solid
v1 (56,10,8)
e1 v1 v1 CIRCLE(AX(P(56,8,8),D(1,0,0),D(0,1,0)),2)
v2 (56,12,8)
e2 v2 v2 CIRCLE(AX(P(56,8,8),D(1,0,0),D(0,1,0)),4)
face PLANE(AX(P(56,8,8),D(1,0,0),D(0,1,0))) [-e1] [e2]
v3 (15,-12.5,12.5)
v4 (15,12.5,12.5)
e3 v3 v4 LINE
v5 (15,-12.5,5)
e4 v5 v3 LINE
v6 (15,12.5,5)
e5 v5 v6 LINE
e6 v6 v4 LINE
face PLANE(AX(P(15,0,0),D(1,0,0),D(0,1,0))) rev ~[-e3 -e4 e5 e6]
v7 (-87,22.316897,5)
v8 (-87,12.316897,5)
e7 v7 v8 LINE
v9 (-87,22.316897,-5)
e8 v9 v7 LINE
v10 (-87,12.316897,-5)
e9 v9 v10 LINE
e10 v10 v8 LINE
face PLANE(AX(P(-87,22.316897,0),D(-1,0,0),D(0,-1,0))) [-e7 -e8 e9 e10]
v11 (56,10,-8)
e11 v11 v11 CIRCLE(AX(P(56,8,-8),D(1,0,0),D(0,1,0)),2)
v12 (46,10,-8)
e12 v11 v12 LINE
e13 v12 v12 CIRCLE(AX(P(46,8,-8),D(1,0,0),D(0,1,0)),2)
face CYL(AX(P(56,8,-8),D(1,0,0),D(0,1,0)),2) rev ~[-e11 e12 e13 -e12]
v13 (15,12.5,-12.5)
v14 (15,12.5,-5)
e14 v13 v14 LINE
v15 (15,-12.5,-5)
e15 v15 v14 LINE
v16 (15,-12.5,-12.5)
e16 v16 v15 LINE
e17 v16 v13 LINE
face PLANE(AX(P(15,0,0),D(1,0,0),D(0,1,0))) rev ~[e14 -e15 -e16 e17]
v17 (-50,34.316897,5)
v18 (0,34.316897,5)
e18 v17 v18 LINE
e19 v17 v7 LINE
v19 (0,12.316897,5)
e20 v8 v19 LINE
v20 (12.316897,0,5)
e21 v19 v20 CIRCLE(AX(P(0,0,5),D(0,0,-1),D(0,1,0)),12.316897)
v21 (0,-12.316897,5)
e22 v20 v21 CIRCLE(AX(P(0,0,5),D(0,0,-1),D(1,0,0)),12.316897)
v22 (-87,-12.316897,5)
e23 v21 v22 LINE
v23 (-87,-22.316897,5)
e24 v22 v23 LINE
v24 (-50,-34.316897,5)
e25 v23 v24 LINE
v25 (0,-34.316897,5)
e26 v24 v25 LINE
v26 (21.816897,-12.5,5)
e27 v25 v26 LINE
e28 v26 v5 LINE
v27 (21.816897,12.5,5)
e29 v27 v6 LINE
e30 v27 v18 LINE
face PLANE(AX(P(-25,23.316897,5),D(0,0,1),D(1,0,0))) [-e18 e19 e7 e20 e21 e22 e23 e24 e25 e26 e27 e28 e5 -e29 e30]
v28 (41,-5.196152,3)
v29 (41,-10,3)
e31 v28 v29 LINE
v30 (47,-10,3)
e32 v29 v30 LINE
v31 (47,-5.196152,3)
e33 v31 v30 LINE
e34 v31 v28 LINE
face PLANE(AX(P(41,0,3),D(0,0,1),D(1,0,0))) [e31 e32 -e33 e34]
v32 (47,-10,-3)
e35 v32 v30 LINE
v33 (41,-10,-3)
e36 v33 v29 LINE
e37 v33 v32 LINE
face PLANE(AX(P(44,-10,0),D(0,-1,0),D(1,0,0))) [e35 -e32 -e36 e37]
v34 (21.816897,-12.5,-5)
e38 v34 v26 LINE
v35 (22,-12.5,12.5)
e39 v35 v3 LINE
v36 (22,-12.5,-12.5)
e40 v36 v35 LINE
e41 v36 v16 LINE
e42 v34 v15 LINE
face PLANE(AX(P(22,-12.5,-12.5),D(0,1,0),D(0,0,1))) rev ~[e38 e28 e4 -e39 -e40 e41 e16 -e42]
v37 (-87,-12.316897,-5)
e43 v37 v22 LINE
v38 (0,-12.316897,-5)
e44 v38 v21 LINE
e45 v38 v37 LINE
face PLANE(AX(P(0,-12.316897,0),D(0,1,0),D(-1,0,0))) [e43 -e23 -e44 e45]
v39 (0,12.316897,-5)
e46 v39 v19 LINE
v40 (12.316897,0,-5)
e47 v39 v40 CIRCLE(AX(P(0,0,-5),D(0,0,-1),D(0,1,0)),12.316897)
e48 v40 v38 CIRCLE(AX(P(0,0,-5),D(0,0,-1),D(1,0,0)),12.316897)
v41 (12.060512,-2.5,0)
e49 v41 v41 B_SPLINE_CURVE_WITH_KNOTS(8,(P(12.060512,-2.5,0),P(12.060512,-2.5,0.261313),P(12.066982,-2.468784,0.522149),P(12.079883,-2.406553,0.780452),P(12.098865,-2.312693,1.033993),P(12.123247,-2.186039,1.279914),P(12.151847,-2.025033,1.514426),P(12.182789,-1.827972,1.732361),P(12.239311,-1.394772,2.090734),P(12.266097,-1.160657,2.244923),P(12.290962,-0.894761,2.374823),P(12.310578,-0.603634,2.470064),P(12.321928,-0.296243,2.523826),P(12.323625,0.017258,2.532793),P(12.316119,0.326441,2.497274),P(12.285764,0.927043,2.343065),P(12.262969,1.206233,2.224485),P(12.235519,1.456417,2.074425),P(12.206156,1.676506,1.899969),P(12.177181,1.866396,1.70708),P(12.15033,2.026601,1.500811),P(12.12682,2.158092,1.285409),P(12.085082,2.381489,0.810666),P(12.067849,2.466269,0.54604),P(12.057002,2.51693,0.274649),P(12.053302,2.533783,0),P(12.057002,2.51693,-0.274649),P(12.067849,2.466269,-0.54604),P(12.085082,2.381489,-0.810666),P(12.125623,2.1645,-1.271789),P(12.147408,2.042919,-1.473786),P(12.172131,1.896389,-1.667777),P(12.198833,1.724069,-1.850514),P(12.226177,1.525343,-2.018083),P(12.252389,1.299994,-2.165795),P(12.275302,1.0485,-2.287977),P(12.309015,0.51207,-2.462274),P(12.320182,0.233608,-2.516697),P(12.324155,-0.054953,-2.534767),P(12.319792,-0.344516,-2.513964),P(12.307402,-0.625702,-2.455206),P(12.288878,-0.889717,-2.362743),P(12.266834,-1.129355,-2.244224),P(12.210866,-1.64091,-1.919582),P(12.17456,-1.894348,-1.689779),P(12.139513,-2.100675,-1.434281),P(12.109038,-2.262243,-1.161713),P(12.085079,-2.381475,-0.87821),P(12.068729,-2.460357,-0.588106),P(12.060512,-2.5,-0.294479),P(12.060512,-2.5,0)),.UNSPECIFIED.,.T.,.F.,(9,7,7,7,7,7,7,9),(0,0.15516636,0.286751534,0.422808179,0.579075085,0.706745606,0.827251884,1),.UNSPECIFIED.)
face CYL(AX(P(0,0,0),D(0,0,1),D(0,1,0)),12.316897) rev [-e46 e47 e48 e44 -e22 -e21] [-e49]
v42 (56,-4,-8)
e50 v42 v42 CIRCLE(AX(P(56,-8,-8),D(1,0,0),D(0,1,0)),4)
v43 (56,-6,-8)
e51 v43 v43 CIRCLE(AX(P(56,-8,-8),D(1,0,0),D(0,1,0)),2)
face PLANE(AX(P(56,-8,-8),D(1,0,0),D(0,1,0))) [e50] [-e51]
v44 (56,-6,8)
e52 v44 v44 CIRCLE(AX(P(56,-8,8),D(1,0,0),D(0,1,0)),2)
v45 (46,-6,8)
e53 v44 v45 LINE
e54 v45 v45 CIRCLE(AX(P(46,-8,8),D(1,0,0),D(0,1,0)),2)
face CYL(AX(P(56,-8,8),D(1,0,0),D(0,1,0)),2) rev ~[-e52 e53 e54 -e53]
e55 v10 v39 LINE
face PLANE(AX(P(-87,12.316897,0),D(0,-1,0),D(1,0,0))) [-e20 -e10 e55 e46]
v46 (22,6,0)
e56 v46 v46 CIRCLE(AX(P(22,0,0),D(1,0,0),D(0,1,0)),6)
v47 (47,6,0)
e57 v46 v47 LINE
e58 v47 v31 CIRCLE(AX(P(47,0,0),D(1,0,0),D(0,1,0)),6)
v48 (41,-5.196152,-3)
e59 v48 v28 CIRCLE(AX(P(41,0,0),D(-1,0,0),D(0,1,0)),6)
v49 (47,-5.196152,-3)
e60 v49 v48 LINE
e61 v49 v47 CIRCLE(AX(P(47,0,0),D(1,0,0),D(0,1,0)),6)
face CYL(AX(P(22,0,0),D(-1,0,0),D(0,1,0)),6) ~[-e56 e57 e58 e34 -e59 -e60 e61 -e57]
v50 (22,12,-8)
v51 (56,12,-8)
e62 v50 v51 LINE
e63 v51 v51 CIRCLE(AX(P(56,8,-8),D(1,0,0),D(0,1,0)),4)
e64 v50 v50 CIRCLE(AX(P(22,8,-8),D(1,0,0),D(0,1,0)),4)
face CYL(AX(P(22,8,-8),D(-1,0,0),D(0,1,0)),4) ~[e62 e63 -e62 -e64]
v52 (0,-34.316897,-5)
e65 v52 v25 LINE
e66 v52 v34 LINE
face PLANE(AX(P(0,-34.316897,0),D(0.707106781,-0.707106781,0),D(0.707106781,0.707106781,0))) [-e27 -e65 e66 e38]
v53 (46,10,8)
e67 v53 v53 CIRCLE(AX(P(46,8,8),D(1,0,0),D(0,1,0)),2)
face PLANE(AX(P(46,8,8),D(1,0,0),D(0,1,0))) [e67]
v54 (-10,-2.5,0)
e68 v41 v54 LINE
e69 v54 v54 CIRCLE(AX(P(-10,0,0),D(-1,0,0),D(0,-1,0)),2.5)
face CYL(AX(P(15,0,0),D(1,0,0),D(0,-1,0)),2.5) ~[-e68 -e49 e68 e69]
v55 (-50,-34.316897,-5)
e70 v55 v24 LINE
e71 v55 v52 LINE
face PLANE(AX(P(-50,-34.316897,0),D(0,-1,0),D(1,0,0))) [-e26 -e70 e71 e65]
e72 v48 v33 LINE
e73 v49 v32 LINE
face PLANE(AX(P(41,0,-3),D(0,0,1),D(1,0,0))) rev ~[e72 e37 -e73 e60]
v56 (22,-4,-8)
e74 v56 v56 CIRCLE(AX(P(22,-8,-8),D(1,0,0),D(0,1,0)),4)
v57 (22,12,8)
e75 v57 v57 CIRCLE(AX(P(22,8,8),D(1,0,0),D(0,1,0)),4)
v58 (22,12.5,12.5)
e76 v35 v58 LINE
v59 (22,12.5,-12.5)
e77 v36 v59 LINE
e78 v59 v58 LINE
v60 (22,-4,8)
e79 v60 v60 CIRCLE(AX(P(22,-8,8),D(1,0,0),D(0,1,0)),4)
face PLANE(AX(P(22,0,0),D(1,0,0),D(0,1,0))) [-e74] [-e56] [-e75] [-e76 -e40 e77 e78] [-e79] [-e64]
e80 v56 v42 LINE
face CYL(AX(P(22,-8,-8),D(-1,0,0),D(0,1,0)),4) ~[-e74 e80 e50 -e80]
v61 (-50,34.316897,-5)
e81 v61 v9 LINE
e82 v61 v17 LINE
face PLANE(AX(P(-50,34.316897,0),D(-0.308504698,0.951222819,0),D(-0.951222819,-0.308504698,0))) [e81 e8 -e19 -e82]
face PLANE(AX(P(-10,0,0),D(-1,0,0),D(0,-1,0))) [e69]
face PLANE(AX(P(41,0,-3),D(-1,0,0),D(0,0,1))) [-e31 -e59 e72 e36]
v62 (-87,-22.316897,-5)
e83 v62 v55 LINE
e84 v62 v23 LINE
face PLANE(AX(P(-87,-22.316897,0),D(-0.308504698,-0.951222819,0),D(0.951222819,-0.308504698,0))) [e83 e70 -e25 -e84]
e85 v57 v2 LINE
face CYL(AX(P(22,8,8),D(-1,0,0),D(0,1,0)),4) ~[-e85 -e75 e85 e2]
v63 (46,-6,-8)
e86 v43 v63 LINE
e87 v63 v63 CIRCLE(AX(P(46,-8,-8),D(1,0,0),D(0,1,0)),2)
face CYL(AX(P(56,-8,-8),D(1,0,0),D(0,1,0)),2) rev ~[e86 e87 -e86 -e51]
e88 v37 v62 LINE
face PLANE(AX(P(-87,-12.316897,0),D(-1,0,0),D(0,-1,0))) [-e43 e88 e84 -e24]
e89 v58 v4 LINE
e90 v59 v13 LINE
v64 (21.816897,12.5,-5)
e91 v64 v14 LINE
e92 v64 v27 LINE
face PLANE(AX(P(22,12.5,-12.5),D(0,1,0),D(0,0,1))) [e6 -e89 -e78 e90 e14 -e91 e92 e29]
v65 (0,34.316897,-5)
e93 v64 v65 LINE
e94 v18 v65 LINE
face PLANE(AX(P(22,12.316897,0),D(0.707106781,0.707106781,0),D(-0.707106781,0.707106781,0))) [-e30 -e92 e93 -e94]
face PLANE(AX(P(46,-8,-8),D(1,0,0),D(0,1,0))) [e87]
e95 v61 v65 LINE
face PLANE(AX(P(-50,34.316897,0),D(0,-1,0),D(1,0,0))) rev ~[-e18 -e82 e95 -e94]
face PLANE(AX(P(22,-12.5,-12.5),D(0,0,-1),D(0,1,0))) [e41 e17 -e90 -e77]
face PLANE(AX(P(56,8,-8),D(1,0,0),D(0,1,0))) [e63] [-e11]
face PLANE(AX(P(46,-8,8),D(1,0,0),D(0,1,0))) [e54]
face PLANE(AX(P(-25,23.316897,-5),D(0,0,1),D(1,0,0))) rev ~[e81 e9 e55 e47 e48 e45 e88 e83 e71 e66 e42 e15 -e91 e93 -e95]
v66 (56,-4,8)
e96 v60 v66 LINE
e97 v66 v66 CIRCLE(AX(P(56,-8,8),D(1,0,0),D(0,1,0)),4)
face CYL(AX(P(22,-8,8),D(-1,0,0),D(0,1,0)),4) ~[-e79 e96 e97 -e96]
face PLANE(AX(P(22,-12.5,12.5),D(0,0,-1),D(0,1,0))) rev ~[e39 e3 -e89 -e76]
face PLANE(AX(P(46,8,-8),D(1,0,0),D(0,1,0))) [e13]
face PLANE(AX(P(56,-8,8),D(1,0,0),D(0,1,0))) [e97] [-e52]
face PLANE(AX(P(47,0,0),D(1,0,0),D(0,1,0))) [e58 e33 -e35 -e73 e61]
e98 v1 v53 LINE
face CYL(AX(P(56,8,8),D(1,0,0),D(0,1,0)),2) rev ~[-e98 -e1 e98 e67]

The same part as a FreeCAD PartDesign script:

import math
import FreeCAD as App
import Part
import Sketcher
from FreeCAD import Vector
Q = App.Units.Quantity

doc = App.newDocument("Part")
body = doc.addObject("PartDesign::Body", "Body")

# Sketch on XY plane
sketch1 = body.newObject("Sketcher::SketchObject", "Sketch")
sketch1.AttachmentSupport = (doc.getObject("XY_Plane"), [""])
sketch1.MapMode = "FlatFace"
sketch1.addGeometry([
    Part.LineSegment(Vector(0, 34.316897, 0), Vector(-50, 34.316897, 0)),  # 0
    Part.LineSegment(Vector(-50, 34.316897, 0), Vector(-87, 22.316897, 0)),  # 1
    Part.LineSegment(Vector(-87, 22.316897, 0), Vector(-87, 12.316897, 0)),  # 2
    Part.LineSegment(Vector(-87, 12.316897, 0), Vector(0, 12.316897, 0)),  # 3
    Part.ArcOfCircle(Part.Circle(Vector(0, 0, 0), Vector(0, 0, 1), 12.316897), math.radians(0), math.radians(90)),  # 4
    Part.ArcOfCircle(Part.Circle(Vector(0, 0, 0), Vector(0, 0, 1), 12.316897), math.radians(-90), math.radians(0)),  # 5
    Part.LineSegment(Vector(0, -12.316897, 0), Vector(-87, -12.316897, 0)),  # 6
    Part.LineSegment(Vector(-87, -12.316897, 0), Vector(-87, -22.316897, 0)),  # 7
    Part.LineSegment(Vector(-87, -22.316897, 0), Vector(-50, -34.316897, 0)),  # 8
    Part.LineSegment(Vector(-50, -34.316897, 0), Vector(0, -34.316897, 0)),  # 9
    Part.LineSegment(Vector(0, -34.316897, 0), Vector(22, -12.316897, 0)),  # 10
    Part.LineSegment(Vector(22, -12.316897, 0), Vector(22, 12.316897, 0)),  # 11
    Part.LineSegment(Vector(22, 12.316897, 0), Vector(0, 34.316897, 0)),  # 12
], False)
sketch1.addConstraint([
    Sketcher.Constraint("Coincident", 0, 2, 1, 1),
    Sketcher.Constraint("Coincident", 1, 2, 2, 1),
    Sketcher.Constraint("Coincident", 2, 2, 3, 1),
    Sketcher.Constraint("Tangent", 3, 2, 4, 2),
    Sketcher.Constraint("Tangent", 4, 1, 5, 2),
    Sketcher.Constraint("Tangent", 5, 1, 6, 1),
    Sketcher.Constraint("Coincident", 6, 2, 7, 1),
    Sketcher.Constraint("Coincident", 7, 2, 8, 1),
    Sketcher.Constraint("Coincident", 8, 2, 9, 1),
    Sketcher.Constraint("Coincident", 9, 2, 10, 1),
    Sketcher.Constraint("Coincident", 10, 2, 11, 1),
    Sketcher.Constraint("Coincident", 11, 2, 12, 1),
    Sketcher.Constraint("Coincident", 12, 2, 0, 1),
    Sketcher.Constraint("Horizontal", 0),
    Sketcher.Constraint("Vertical", 2),
    Sketcher.Constraint("Horizontal", 3),
    Sketcher.Constraint("Horizontal", 6),
    Sketcher.Constraint("Vertical", 7),
    Sketcher.Constraint("Horizontal", 9),
    Sketcher.Constraint("Vertical", 11),
    Sketcher.Constraint("Coincident", 4, 3, -1, 1),
    Sketcher.Constraint("Equal", 4, 5),
    Sketcher.Constraint("Symmetric", 9, 2, 12, 2, -1, 1),
    Sketcher.Constraint("Symmetric", 1, 2, 7, 2, -1),
    Sketcher.Constraint("PointOnObject", 4, 1, -1),
    Sketcher.Constraint("PointOnObject", 9, 2, -2),
    Sketcher.Constraint("Perpendicular", 10, 12),
    Sketcher.Constraint("Horizontal", 6, 2, 10, 2),
    Sketcher.Constraint("Horizontal", 3, 2, 11, 2),
    Sketcher.Constraint("Vertical", 0, 2, 8, 2),
    Sketcher.Constraint("DistanceX", 0, 2, 0, 1, Q("50 mm")),
    Sketcher.Constraint("DistanceX", 3, 1, 3, 2, Q("87 mm")),
    Sketcher.Constraint("DistanceY", 2, 2, 2, 1, Q("10 mm")),
    Sketcher.Constraint("DistanceX", -1, 1, 10, 2, Q("22 mm")),
    Sketcher.Constraint("Radius", 4, Q("12.316897 mm")),
])
pad1 = body.newObject("PartDesign::Pad", "Pad")
pad1.Profile = sketch1
pad1.Length = 10
pad1.Midplane = True

# Sketch on YZ plane
sketch2 = body.newObject("Sketcher::SketchObject", "Sketch001")
sketch2.AttachmentSupport = (doc.getObject("YZ_Plane"), [""])
sketch2.MapMode = "FlatFace"
sketch2.AttachmentOffset = App.Placement(Vector(0, 0, 22), App.Rotation())
sketch2.addGeometry([
    Part.LineSegment(Vector(-12.5, 12.5, 0), Vector(-12.5, -12.5, 0)),
    Part.LineSegment(Vector(-12.5, -12.5, 0), Vector(12.5, -12.5, 0)),
    Part.LineSegment(Vector(12.5, -12.5, 0), Vector(12.5, 12.5, 0)),
    Part.LineSegment(Vector(12.5, 12.5, 0), Vector(-12.5, 12.5, 0)),
], False)
sketch2.addConstraint([
    Sketcher.Constraint("Coincident", 0, 2, 1, 1),
    Sketcher.Constraint("Coincident", 1, 2, 2, 1),
    Sketcher.Constraint("Coincident", 2, 2, 3, 1),
    Sketcher.Constraint("Coincident", 3, 2, 0, 1),
    Sketcher.Constraint("Vertical", 0),
    Sketcher.Constraint("Horizontal", 1),
    Sketcher.Constraint("Vertical", 2),
    Sketcher.Constraint("Horizontal", 3),
    Sketcher.Constraint("Symmetric", 0, 2, 2, 2, -1, 1),
    Sketcher.Constraint("Equal", 3, 0),
    Sketcher.Constraint("DistanceX", 1, 1, 1, 2, Q("25 mm")),
])
pad2 = body.newObject("PartDesign::Pad", "Pad001")
pad2.Profile = sketch2
pad2.Length = 7
pad2.Reversed = True

# Sketch on YZ plane
sketch3 = body.newObject("Sketcher::SketchObject", "Sketch002")
sketch3.AttachmentSupport = (doc.getObject("YZ_Plane"), [""])
sketch3.MapMode = "FlatFace"
sketch3.AttachmentOffset = App.Placement(Vector(0, 0, 22), App.Rotation())
sketch3.addGeometry(Part.Circle(Vector(0, 0, 0), Vector(0, 0, 1), 6), False)
sketch3.addConstraint([
    Sketcher.Constraint("Coincident", 0, 3, -1, 1),
    Sketcher.Constraint("Diameter", 0, Q("12 mm")),
])
pad3 = body.newObject("PartDesign::Pad", "Pad002")
pad3.Profile = sketch3
pad3.Length = 25

# Sketch on YZ plane
sketch4 = body.newObject("Sketcher::SketchObject", "Sketch003")
sketch4.AttachmentSupport = (doc.getObject("YZ_Plane"), [""])
sketch4.MapMode = "FlatFace"
sketch4.AttachmentOffset = App.Placement(Vector(0, 0, 22), App.Rotation())
sketch4.addGeometry([
    Part.Circle(Vector(8, 8, 0), Vector(0, 0, 1), 4),
    Part.Circle(Vector(-8, 8, 0), Vector(0, 0, 1), 4),
    Part.Circle(Vector(8, -8, 0), Vector(0, 0, 1), 4),
    Part.Circle(Vector(-8, -8, 0), Vector(0, 0, 1), 4),
], False)
sketch4.addConstraint([
    Sketcher.Constraint("Equal", 0, 1),
    Sketcher.Constraint("Equal", 1, 2),
    Sketcher.Constraint("Equal", 2, 3),
    Sketcher.Constraint("Symmetric", 1, 3, 2, 3, -1, 1),
    Sketcher.Constraint("Symmetric", 0, 3, 3, 3, -1, 1),
    Sketcher.Constraint("Symmetric", 0, 3, 1, 3, -2),
    Sketcher.Constraint("Diameter", 0, Q("8 mm")),
    Sketcher.Constraint("DistanceX", -1, 1, 0, 3, Q("8 mm")),
    Sketcher.Constraint("DistanceY", -1, 1, 0, 3, Q("8 mm")),
])
pad4 = body.newObject("PartDesign::Pad", "Pad003")
pad4.Profile = sketch4
pad4.Length = 34

# Sketch on YZ plane
sketch5 = body.newObject("Sketcher::SketchObject", "Sketch004")
sketch5.AttachmentSupport = (doc.getObject("YZ_Plane"), [""])
sketch5.MapMode = "FlatFace"
sketch5.AttachmentOffset = App.Placement(Vector(0, 0, 56), App.Rotation())
sketch5.addGeometry([
    Part.Circle(Vector(8, 8, 0), Vector(0, 0, 1), 2),
    Part.Circle(Vector(-8, 8, 0), Vector(0, 0, 1), 2),
    Part.Circle(Vector(8, -8, 0), Vector(0, 0, 1), 2),
    Part.Circle(Vector(-8, -8, 0), Vector(0, 0, 1), 2),
], False)
sketch5.addConstraint([
    Sketcher.Constraint("Equal", 0, 1),
    Sketcher.Constraint("Equal", 1, 2),
    Sketcher.Constraint("Equal", 2, 3),
    Sketcher.Constraint("Symmetric", 1, 3, 2, 3, -1, 1),
    Sketcher.Constraint("Symmetric", 0, 3, 3, 3, -1, 1),
    Sketcher.Constraint("Symmetric", 0, 3, 1, 3, -2),
    Sketcher.Constraint("Diameter", 0, Q("4 mm")),
    Sketcher.Constraint("DistanceX", -1, 1, 0, 3, Q("8 mm")),
    Sketcher.Constraint("DistanceY", -1, 1, 0, 3, Q("8 mm")),
])
pocket1 = body.newObject("PartDesign::Pocket", "Pocket")
pocket1.Profile = sketch5
pocket1.Length = 10

# Sketch on YZ plane
sketch6 = body.newObject("Sketcher::SketchObject", "Sketch005")
sketch6.AttachmentSupport = (doc.getObject("YZ_Plane"), [""])
sketch6.MapMode = "FlatFace"
sketch6.AttachmentOffset = App.Placement(Vector(0, 0, 15), App.Rotation())
sketch6.addGeometry(Part.Circle(Vector(0, 0, 0), Vector(0, 0, 1), 2.5), False)
sketch6.addConstraint([
    Sketcher.Constraint("Coincident", 0, 3, -1, 1),
    Sketcher.Constraint("Diameter", 0, Q("5 mm")),
])
pad5 = body.newObject("PartDesign::Pad", "Pad004")
pad5.Profile = sketch6
pad5.Length = 25
pad5.Reversed = True

# Sketch on XZ plane
sketch7 = body.newObject("Sketcher::SketchObject", "Sketch006")
sketch7.AttachmentSupport = (doc.getObject("XZ_Plane"), [""])
sketch7.MapMode = "FlatFace"
sketch7.addGeometry([
    Part.LineSegment(Vector(41, 3, 0), Vector(41, -3, 0)),
    Part.LineSegment(Vector(41, -3, 0), Vector(47, -3, 0)),
    Part.LineSegment(Vector(47, -3, 0), Vector(47, 3, 0)),
    Part.LineSegment(Vector(47, 3, 0), Vector(41, 3, 0)),
], False)
sketch7.addConstraint([
    Sketcher.Constraint("Coincident", 0, 2, 1, 1),
    Sketcher.Constraint("Coincident", 1, 2, 2, 1),
    Sketcher.Constraint("Coincident", 2, 2, 3, 1),
    Sketcher.Constraint("Coincident", 3, 2, 0, 1),
    Sketcher.Constraint("Vertical", 0),
    Sketcher.Constraint("Horizontal", 1),
    Sketcher.Constraint("Vertical", 2),
    Sketcher.Constraint("Horizontal", 3),
    Sketcher.Constraint("Equal", 3, 0),
    Sketcher.Constraint("DistanceX", 1, 1, 1, 2, Q("6 mm")),
    Sketcher.Constraint("DistanceX", -1, 1, 0, 2, Q("41 mm")),
    Sketcher.Constraint("DistanceY", 0, 2, -1, 1, Q("3 mm")),
])
pad6 = body.newObject("PartDesign::Pad", "Pad005")
pad6.Profile = sketch7
pad6.Length = 10

doc.recompute()
